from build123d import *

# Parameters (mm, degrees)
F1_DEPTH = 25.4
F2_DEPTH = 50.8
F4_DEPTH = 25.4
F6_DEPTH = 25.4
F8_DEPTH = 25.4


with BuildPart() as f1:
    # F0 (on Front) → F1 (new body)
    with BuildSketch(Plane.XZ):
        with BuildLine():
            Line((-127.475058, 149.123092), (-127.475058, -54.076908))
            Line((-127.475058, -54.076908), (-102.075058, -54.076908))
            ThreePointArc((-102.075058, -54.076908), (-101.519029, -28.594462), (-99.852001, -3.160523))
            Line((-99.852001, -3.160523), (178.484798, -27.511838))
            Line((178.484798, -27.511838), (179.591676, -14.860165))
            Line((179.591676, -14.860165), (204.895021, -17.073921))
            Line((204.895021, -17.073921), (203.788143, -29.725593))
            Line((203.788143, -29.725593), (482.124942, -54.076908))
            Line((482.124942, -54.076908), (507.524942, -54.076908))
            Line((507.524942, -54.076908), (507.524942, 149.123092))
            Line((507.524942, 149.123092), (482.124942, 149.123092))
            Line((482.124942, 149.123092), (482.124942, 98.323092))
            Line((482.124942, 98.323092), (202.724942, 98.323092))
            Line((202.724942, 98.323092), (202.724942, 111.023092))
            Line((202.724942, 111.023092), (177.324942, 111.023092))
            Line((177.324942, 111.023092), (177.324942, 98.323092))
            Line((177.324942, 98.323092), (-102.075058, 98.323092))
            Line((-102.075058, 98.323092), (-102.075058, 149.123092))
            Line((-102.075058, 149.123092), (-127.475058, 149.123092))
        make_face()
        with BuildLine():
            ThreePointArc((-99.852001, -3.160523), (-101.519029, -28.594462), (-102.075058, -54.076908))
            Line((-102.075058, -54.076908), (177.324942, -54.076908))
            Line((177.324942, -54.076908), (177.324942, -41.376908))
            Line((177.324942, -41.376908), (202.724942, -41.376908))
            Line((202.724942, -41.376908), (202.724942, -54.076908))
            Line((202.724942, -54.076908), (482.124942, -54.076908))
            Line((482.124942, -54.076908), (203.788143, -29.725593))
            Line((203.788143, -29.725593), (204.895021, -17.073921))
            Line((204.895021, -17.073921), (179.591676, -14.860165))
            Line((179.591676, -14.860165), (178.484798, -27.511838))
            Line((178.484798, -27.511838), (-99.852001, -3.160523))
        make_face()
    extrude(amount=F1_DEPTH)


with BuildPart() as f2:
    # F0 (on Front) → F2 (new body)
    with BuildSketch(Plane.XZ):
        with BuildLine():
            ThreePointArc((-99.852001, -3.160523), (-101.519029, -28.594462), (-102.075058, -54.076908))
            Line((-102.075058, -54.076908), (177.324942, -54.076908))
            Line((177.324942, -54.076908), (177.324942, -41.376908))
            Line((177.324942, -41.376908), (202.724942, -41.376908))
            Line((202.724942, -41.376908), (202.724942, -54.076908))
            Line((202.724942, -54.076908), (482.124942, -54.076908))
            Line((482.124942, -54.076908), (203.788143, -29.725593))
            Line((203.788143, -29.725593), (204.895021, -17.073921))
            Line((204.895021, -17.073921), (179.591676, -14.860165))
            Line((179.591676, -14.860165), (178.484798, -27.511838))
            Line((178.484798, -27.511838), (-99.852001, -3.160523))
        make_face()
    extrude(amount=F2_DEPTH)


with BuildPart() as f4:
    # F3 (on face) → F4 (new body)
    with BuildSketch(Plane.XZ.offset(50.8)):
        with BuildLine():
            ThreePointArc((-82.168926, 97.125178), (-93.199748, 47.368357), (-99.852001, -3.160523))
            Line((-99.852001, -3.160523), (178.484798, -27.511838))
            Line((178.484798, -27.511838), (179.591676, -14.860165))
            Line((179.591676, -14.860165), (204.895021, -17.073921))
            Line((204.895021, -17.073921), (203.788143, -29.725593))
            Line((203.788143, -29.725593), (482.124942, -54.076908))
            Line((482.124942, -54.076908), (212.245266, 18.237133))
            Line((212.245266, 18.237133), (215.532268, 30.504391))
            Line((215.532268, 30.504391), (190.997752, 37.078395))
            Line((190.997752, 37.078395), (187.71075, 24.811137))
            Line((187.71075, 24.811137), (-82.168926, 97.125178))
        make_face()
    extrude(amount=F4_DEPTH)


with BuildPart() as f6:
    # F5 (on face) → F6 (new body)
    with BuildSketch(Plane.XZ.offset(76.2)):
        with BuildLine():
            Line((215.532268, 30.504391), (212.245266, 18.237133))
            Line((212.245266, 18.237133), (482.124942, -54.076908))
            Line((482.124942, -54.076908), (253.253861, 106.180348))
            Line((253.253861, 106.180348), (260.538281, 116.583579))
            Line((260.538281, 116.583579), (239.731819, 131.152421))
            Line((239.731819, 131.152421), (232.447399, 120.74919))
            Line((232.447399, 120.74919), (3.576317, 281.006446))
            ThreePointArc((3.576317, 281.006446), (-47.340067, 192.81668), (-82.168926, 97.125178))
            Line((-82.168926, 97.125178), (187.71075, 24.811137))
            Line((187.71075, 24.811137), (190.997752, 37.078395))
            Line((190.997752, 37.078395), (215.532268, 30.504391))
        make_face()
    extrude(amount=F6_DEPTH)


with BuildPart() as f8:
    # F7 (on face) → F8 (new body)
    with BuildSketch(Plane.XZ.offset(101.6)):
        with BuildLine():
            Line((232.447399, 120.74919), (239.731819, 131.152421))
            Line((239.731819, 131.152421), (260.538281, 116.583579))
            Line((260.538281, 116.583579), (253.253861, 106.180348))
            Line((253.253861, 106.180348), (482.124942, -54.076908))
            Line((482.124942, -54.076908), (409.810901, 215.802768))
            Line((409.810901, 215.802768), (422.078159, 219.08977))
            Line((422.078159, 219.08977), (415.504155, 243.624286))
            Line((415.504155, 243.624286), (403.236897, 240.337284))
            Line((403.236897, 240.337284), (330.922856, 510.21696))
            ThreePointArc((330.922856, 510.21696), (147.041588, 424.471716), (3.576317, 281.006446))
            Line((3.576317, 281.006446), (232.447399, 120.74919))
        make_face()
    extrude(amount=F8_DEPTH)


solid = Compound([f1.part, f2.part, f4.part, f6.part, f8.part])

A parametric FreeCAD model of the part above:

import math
import FreeCAD as App
import Part
import Sketcher
from FreeCAD import Vector
Q = App.Units.Quantity

doc = App.newDocument("Part")
body = doc.addObject("PartDesign::Body", "Body")

# Sketch on XZ plane
sketch1 = doc.addObject("Sketcher::SketchObject", "Sketch")
body.addObject(sketch1)
sketch1.AttachmentSupport = (doc.XZ_Plane, [""])
sketch1.MapMode = "FlatFace"
sketch1.addGeometry([
    Part.LineSegment(Vector(-127, 149, 0), Vector(-127, -54, 0)),  # 0
    Part.LineSegment(Vector(-127, -54, 0), Vector(177, -54, 0)),  # 1
    Part.LineSegment(Vector(177, -54, 0), Vector(177, -41, 0)),  # 2
    Part.LineSegment(Vector(177, -41, 0), Vector(203, -41, 0)),  # 3
    Part.LineSegment(Vector(203, -41, 0), Vector(203, -54, 0)),  # 4
    Part.LineSegment(Vector(203, -54, 0), Vector(508, -54, 0)),  # 5
    Part.LineSegment(Vector(508, -54, 0), Vector(508, 149, 0)),  # 6
    Part.LineSegment(Vector(508, 149, 0), Vector(482, 149, 0)),  # 7
    Part.LineSegment(Vector(482, 149, 0), Vector(482, 98, 0)),  # 8
    Part.LineSegment(Vector(482, 98, 0), Vector(203, 98, 0)),  # 9
    Part.LineSegment(Vector(203, 98, 0), Vector(203, 111, 0)),  # 10
    Part.LineSegment(Vector(203, 111, 0), Vector(177, 111, 0)),  # 11
    Part.LineSegment(Vector(177, 111, 0), Vector(177, 98, 0)),  # 12
    Part.LineSegment(Vector(177, 98, 0), Vector(-102, 98, 0)),  # 13
    Part.LineSegment(Vector(-102, 98, 0), Vector(-102, 149, 0)),  # 14
    Part.LineSegment(Vector(-102, 149, 0), Vector(-127, 149, 0)),  # 15
], False)
sketch1.addConstraint([
    Sketcher.Constraint("Coincident", 0, 2, 1, 1),
    Sketcher.Constraint("Coincident", 1, 2, 2, 1),
    Sketcher.Constraint("Coincident", 2, 2, 3, 1),
    Sketcher.Constraint("Coincident", 3, 2, 4, 1),
    Sketcher.Constraint("Coincident", 4, 2, 5, 1),
    Sketcher.Constraint("Coincident", 5, 2, 6, 1),
    Sketcher.Constraint("Coincident", 6, 2, 7, 1),
    Sketcher.Constraint("Coincident", 7, 2, 8, 1),
    Sketcher.Constraint("Coincident", 8, 2, 9, 1),
    Sketcher.Constraint("Coincident", 9, 2, 10, 1),
    Sketcher.Constraint("Coincident", 10, 2, 11, 1),
    Sketcher.Constraint("Coincident", 11, 2, 12, 1),
    Sketcher.Constraint("Coincident", 12, 2, 13, 1),
    Sketcher.Constraint("Coincident", 13, 2, 14, 1),
    Sketcher.Constraint("Coincident", 14, 2, 15, 1),
    Sketcher.Constraint("Coincident", 15, 2, 0, 1),
    Sketcher.Constraint("Vertical", 0),
    Sketcher.Constraint("Horizontal", 1),
    Sketcher.Constraint("Vertical", 2),
    Sketcher.Constraint("Horizontal", 3),
    Sketcher.Constraint("Vertical", 4),
    Sketcher.Constraint("Horizontal", 5),
    Sketcher.Constraint("Vertical", 6),
    Sketcher.Constraint("Horizontal", 7),
    Sketcher.Constraint("Vertical", 8),
    Sketcher.Constraint("Horizontal", 9),
    Sketcher.Constraint("Vertical", 10),
    Sketcher.Constraint("Horizontal", 11),
    Sketcher.Constraint("Vertical", 12),
    Sketcher.Constraint("Horizontal", 13),
    Sketcher.Constraint("Vertical", 14),
    Sketcher.Constraint("Horizontal", 15),
    Sketcher.Constraint("Horizontal", 1, 2, 4, 2),
    Sketcher.Constraint("Horizontal", 9, 2, 12, 2),
    Sketcher.Constraint("Horizontal", 7, 2, 14, 2),
    Sketcher.Constraint("Vertical", 4, 2, 9, 2),
    Sketcher.Constraint("Vertical", 2, 2, 11, 2),
    Sketcher.Constraint("Equal", 1, 5),
    Sketcher.Constraint("Equal", 3, 7),
    Sketcher.Constraint("Equal", 9, 13),
    Sketcher.Constraint("Equal", 4, 10),
    Sketcher.Constraint("DistanceX", 1, 1, 1, 2, Q("12 in")),
    Sketcher.Constraint("DistanceX", 3, 1, 3, 2, Q("1 in")),
    Sketcher.Constraint("DistanceY", 0, 2, 0, 1, Q("8 in")),
    Sketcher.Constraint("DistanceY", 8, 2, 8, 1, Q("2 in")),
    Sketcher.Constraint("DistanceY", 2, 1, 2, 2, Q("0.5 in")),
    Sketcher.Constraint("DistanceX", 0, 2, -1, 1, Q("127.475058 mm")),
    Sketcher.Constraint("DistanceY", 0, 2, -1, 1, Q("54.076908 mm")),
])
pad1 = doc.addObject("PartDesign::Pad", "Pad")
body.addObject(pad1)
pad1.Profile = sketch1
pad1.Length = Q("1 in")
body2 = doc.addObject("PartDesign::Body", "Body001")

# Sketch on XZ plane
sketch2 = doc.addObject("Sketcher::SketchObject", "Sketch001")
body2.addObject(sketch2)
sketch2.AttachmentSupport = (doc.getObject("XZ_Plane001"), [""])
sketch2.MapMode = "FlatFace"
sketch2.addGeometry([
    Part.ArcOfCircle(Part.Circle(Vector(482, -54, 0), Vector(0, 0, 1), 584), math.radians(175), math.radians(180)),  # 0
    Part.LineSegment(Vector(-102, -54, 0), Vector(177, -54, 0)),  # 1
    Part.LineSegment(Vector(177, -54, 0), Vector(177, -41, 0)),  # 2
    Part.LineSegment(Vector(177, -41, 0), Vector(203, -41, 0)),  # 3
    Part.LineSegment(Vector(203, -41, 0), Vector(203, -54, 0)),  # 4
    Part.LineSegment(Vector(203, -54, 0), Vector(482, -54, 0)),  # 5
    Part.LineSegment(Vector(482, -54, 0), Vector(204, -30, 0)),  # 6
    Part.LineSegment(Vector(204, -30, 0), Vector(205, -17, 0)),  # 7
    Part.LineSegment(Vector(205, -17, 0), Vector(180, -15, 0)),  # 8
    Part.LineSegment(Vector(180, -15, 0), Vector(178, -28, 0)),  # 9
    Part.LineSegment(Vector(178, -28, 0), Vector(-100, -3, 0)),  # 10
], False)
sketch2.addConstraint([
    Sketcher.Constraint("Coincident", 0, 2, 1, 1),
    Sketcher.Constraint("Coincident", 1, 2, 2, 1),
    Sketcher.Constraint("Coincident", 2, 2, 3, 1),
    Sketcher.Constraint("Coincident", 3, 2, 4, 1),
    Sketcher.Constraint("Coincident", 4, 2, 5, 1),
    Sketcher.Constraint("Coincident", 5, 2, 6, 1),
    Sketcher.Constraint("Coincident", 6, 2, 7, 1),
    Sketcher.Constraint("Coincident", 7, 2, 8, 1),
    Sketcher.Constraint("Coincident", 8, 2, 9, 1),
    Sketcher.Constraint("Coincident", 9, 2, 10, 1),
    Sketcher.Constraint("Coincident", 10, 2, 0, 1),
    Sketcher.Constraint("Horizontal", 1),
    Sketcher.Constraint("Vertical", 2),
    Sketcher.Constraint("Horizontal", 3),
    Sketcher.Constraint("Vertical", 4),
    Sketcher.Constraint("Horizontal", 5),
    Sketcher.Constraint("Perpendicular", 6, 7),
    Sketcher.Constraint("Perpendicular", 7, 8),
    Sketcher.Constraint("Perpendicular", 8, 9),
    Sketcher.Constraint("Perpendicular", 9, 10),
    Sketcher.Constraint("Horizontal", 1, 2, 4, 2),
    Sketcher.Constraint("Equal", 1, 5),
    Sketcher.Constraint("Equal", 7, 9),
    Sketcher.Constraint("Equal", 6, 10),
    Sketcher.Constraint("DistanceX", 1, 1, 1, 2, Q("11 in")),
    Sketcher.Constraint("DistanceX", 3, 1, 3, 2, Q("1 in")),
    Sketcher.Constraint("Distance", 6, Q("11 in")),
    Sketcher.Constraint("Distance", 8, Q("1 in")),
    Sketcher.Constraint("DistanceY", 2, 1, 2, 2, Q("0.5 in")),
    Sketcher.Constraint("Angle", 6, Q("175 deg")),
    Sketcher.Constraint("Distance", 7, Q("0.5 in")),
    Sketcher.Constraint("Radius", 0, Q("584.200255 mm")),
    Sketcher.Constraint("DistanceX", -1, 1, 9, 2, Q("178.484798 mm")),
    Sketcher.Constraint("DistanceY", 1, 2, -1, 1, Q("54.076908 mm")),
])
pad2 = doc.addObject("PartDesign::Pad", "Pad001")
body2.addObject(pad2)
pad2.Profile = sketch2
pad2.Length = Q("2 in")
body3 = doc.addObject("PartDesign::Body", "Body002")

# Sketch on XZ plane
sketch3 = doc.addObject("Sketcher::SketchObject", "Sketch002")
body3.addObject(sketch3)
sketch3.AttachmentSupport = (doc.getObject("XZ_Plane002"), [""])
sketch3.MapMode = "FlatFace"
sketch3.AttachmentOffset = App.Placement(Vector(0, 0, 2 * 25.4), App.Rotation())
sketch3.addGeometry([
    Part.ArcOfCircle(Part.Circle(Vector(482, -54, 0), Vector(0, 0, 1), 584), math.radians(165), math.radians(175)),  # 0
    Part.LineSegment(Vector(-100, -3, 0), Vector(178, -28, 0)),  # 1
    Part.LineSegment(Vector(178, -28, 0), Vector(180, -15, 0)),  # 2
    Part.LineSegment(Vector(180, -15, 0), Vector(205, -17, 0)),  # 3
    Part.LineSegment(Vector(205, -17, 0), Vector(204, -30, 0)),  # 4
    Part.LineSegment(Vector(204, -30, 0), Vector(482, -54, 0)),  # 5
    Part.LineSegment(Vector(482, -54, 0), Vector(212, 18, 0)),  # 6
    Part.LineSegment(Vector(212, 18, 0), Vector(216, 31, 0)),  # 7
    Part.LineSegment(Vector(216, 31, 0), Vector(191, 37, 0)),  # 8
    Part.LineSegment(Vector(191, 37, 0), Vector(188, 25, 0)),  # 9
    Part.LineSegment(Vector(188, 25, 0), Vector(-82, 97, 0)),  # 10
], False)
sketch3.addConstraint([
    Sketcher.Constraint("Coincident", 0, 2, 1, 1),
    Sketcher.Constraint("Coincident", 1, 2, 2, 1),
    Sketcher.Constraint("Coincident", 2, 2, 3, 1),
    Sketcher.Constraint("Coincident", 3, 2, 4, 1),
    Sketcher.Constraint("Coincident", 4, 2, 5, 1),
    Sketcher.Constraint("Coincident", 5, 2, 6, 1),
    Sketcher.Constraint("Coincident", 6, 2, 7, 1),
    Sketcher.Constraint("Coincident", 7, 2, 8, 1),
    Sketcher.Constraint("Coincident", 8, 2, 9, 1),
    Sketcher.Constraint("Coincident", 9, 2, 10, 1),
    Sketcher.Constraint("Coincident", 10, 2, 0, 1),
    Sketcher.Constraint("Perpendicular", 1, 2),
    Sketcher.Constraint("Perpendicular", 2, 3),
    Sketcher.Constraint("Perpendicular", 3, 4),
    Sketcher.Constraint("Perpendicular", 4, 5),
    Sketcher.Constraint("Perpendicular", 6, 7),
    Sketcher.Constraint("Perpendicular", 7, 8),
    Sketcher.Constraint("Perpendicular", 8, 9),
    Sketcher.Constraint("Perpendicular", 9, 10),
    Sketcher.Constraint("Equal", 2, 4),
    Sketcher.Constraint("Equal", 1, 5),
    Sketcher.Constraint("Equal", 5, 6),
    Sketcher.Constraint("Equal", 4, 7),
    Sketcher.Constraint("Equal", 3, 8),
    Sketcher.Constraint("Equal", 7, 9),
    Sketcher.Constraint("Equal", 6, 10),
    Sketcher.Constraint("Distance", 1, Q("11 in")),
    Sketcher.Constraint("Distance", 3, Q("1 in")),
    Sketcher.Constraint("Angle", 1, Q("-5 deg")),
    Sketcher.Constraint("Angle", 6, Q("165 deg")),
    Sketcher.Constraint("Distance", 2, Q("0.5 in")),
    Sketcher.Constraint("Radius", 0, Q("584.199921 mm")),
    Sketcher.Constraint("DistanceX", 0, 2, -1, 1, Q("99.852001 mm")),
    Sketcher.Constraint("DistanceY", 1, 2, -1, 1, Q("27.511838 mm")),
])
pad3 = doc.addObject("PartDesign::Pad", "Pad002")
body3.addObject(pad3)
pad3.Profile = sketch3
pad3.Length = Q("1 in")
body4 = doc.addObject("PartDesign::Body", "Body003")

# Sketch on XZ plane
sketch4 = doc.addObject("Sketcher::SketchObject", "Sketch003")
body4.addObject(sketch4)
sketch4.AttachmentSupport = (doc.getObject("XZ_Plane003"), [""])
sketch4.MapMode = "FlatFace"
sketch4.AttachmentOffset = App.Placement(Vector(0, 0, 3 * 25.4), App.Rotation())
sketch4.addGeometry([
    Part.LineSegment(Vector(216, 31, 0), Vector(212, 18, 0)),  # 0
    Part.LineSegment(Vector(212, 18, 0), Vector(482, -54, 0)),  # 1
    Part.LineSegment(Vector(482, -54, 0), Vector(253, 106, 0)),  # 2
    Part.LineSegment(Vector(253, 106, 0), Vector(261, 117, 0)),  # 3
    Part.LineSegment(Vector(261, 117, 0), Vector(240, 131, 0)),  # 4
    Part.LineSegment(Vector(240, 131, 0), Vector(232, 121, 0)),  # 5
    Part.LineSegment(Vector(232, 121, 0), Vector(4, 281, 0)),  # 6
    Part.ArcOfCircle(Part.Circle(Vector(482, -54, 0), Vector(0, 0, 1), 584), math.radians(145), math.radians(165)),  # 7
    Part.LineSegment(Vector(-82, 97, 0), Vector(188, 25, 0)),  # 8
    Part.LineSegment(Vector(188, 25, 0), Vector(191, 37, 0)),  # 9
    Part.LineSegment(Vector(191, 37, 0), Vector(216, 31, 0)),  # 10
], False)
sketch4.addConstraint([
    Sketcher.Constraint("Coincident", 0, 2, 1, 1),
    Sketcher.Constraint("Coincident", 1, 2, 2, 1),
    Sketcher.Constraint("Coincident", 2, 2, 3, 1),
    Sketcher.Constraint("Coincident", 3, 2, 4, 1),
    Sketcher.Constraint("Coincident", 4, 2, 5, 1),
    Sketcher.Constraint("Coincident", 5, 2, 6, 1),
    Sketcher.Constraint("Coincident", 6, 2, 7, 1),
    Sketcher.Constraint("Coincident", 7, 2, 8, 1),
    Sketcher.Constraint("Coincident", 8, 2, 9, 1),
    Sketcher.Constraint("Coincident", 9, 2, 10, 1),
    Sketcher.Constraint("Coincident", 10, 2, 0, 1),
    Sketcher.Constraint("Perpendicular", 0, 1),
    Sketcher.Constraint("Perpendicular", 2, 3),
    Sketcher.Constraint("Perpendicular", 3, 4),
    Sketcher.Constraint("Perpendicular", 4, 5),
    Sketcher.Constraint("Perpendicular", 5, 6),
    Sketcher.Constraint("Parallel", 1, 8),
    Sketcher.Constraint("Perpendicular", 8, 9),
    Sketcher.Constraint("Perpendicular", 9, 10),
    Sketcher.Constraint("Equal", 1, 2),
    Sketcher.Constraint("Equal", 0, 3),
    Sketcher.Constraint("Equal", 3, 5),
    Sketcher.Constraint("Equal", 2, 6),
    Sketcher.Constraint("Equal", 6, 8),
    Sketcher.Constraint("Equal", 5, 9),
    Sketcher.Constraint("Equal", 4, 10),
    Sketcher.Constraint("Distance", 1, Q("11 in")),
    Sketcher.Constraint("Distance", 4, Q("1 in")),
    Sketcher.Constraint("Angle", 0, Q("-105.000001 deg")),
    Sketcher.Constraint("Angle", 2, Q("145 deg")),
    Sketcher.Constraint("Distance", 0, Q("0.5 in")),
    Sketcher.Constraint("Radius", 7, Q("584.20005 mm")),
    Sketcher.Constraint("DistanceX", -1, 1, 6, 2, Q("0.1407999 in")),
    Sketcher.Constraint("DistanceY", 7, 3, -1, 1, Q("54.076929 mm")),
])
pad4 = doc.addObject("PartDesign::Pad", "Pad003")
body4.addObject(pad4)
pad4.Profile = sketch4
pad4.Length = Q("1 in")
body5 = doc.addObject("PartDesign::Body", "Body004")

# Sketch on XZ plane
sketch5 = doc.addObject("Sketcher::SketchObject", "Sketch004")
body5.addObject(sketch5)
sketch5.AttachmentSupport = (doc.getObject("XZ_Plane004"), [""])
sketch5.MapMode = "FlatFace"
sketch5.AttachmentOffset = App.Placement(Vector(0, 0, 4 * 25.4), App.Rotation())
sketch5.addGeometry([
    Part.LineSegment(Vector(232.447399, 120.74919, 0), Vector(239.731819, 131.152421, 0)),  # 0
    Part.LineSegment(Vector(239.731819, 131.152421, 0), Vector(260.538281, 116.583579, 0)),  # 1
    Part.LineSegment(Vector(260.538281, 116.583579, 0), Vector(253.253861, 106.180348, 0)),  # 2
    Part.LineSegment(Vector(253.253861, 106.180348, 0), Vector(482.124942, -54.076908, 0)),  # 3
    Part.LineSegment(Vector(482.124942, -54.076908, 0), Vector(409.810901, 215.802768, 0)),  # 4
    Part.LineSegment(Vector(409.810901, 215.802768, 0), Vector(422.078159, 219.08977, 0)),  # 5
    Part.LineSegment(Vector(422.078159, 219.08977, 0), Vector(415.504155, 243.624286, 0)),  # 6
    Part.LineSegment(Vector(415.504155, 243.624286, 0), Vector(403.236897, 240.337284, 0)),  # 7
    Part.LineSegment(Vector(403.236897, 240.337284, 0), Vector(330.922856, 510.21696, 0)),  # 8
    Part.ArcOfCircle(Part.Circle(Vector(482.124948, -54.076917, 0), Vector(0, 0, 1), 584.200011), math.radians(105), math.radians(145)),  # 9
    Part.LineSegment(Vector(3.576317, 281.006446, 0), Vector(232.447399, 120.74919, 0)),  # 10
], False)
sketch5.addConstraint([
    Sketcher.Constraint("Coincident", 0, 2, 1, 1),
    Sketcher.Constraint("Coincident", 1, 2, 2, 1),
    Sketcher.Constraint("Coincident", 2, 2, 3, 1),
    Sketcher.Constraint("Coincident", 3, 2, 4, 1),
    Sketcher.Constraint("Coincident", 4, 2, 5, 1),
    Sketcher.Constraint("Coincident", 5, 2, 6, 1),
    Sketcher.Constraint("Coincident", 6, 2, 7, 1),
    Sketcher.Constraint("Coincident", 7, 2, 8, 1),
    Sketcher.Constraint("Coincident", 8, 2, 9, 1),
    Sketcher.Constraint("Coincident", 9, 2, 10, 1),
    Sketcher.Constraint("Coincident", 10, 2, 0, 1),
    Sketcher.Constraint("Distance", 1, Q("1 in")),
    Sketcher.Constraint("Distance", 3, Q("11 in")),
    Sketcher.Constraint("Distance", 4, Q("11 in")),
    Sketcher.Constraint("Distance", 6, Q("1 in")),
    Sketcher.Constraint("Distance", 8, Q("11 in")),
    Sketcher.Constraint("Distance", 10, Q("11 in")),
    Sketcher.Constraint("Distance", 0, Q("0.5 in")),
    Sketcher.Constraint("Distance", 2, Q("0.5 in")),
    Sketcher.Constraint("Distance", 5, Q("0.5 in")),
    Sketcher.Constraint("Distance", 7, Q("0.5 in")),
    Sketcher.Constraint("Radius", 9, Q("584.200011 mm")),
    Sketcher.Constraint("DistanceX", -1, 1, 9, 2, Q("0.1407999 in")),
    Sketcher.Constraint("DistanceX", -1, 1, 4, 2, Q("409.810901 mm")),
    Sketcher.Constraint("DistanceX", -1, 1, 10, 2, Q("232.447399 mm")),
    Sketcher.Constraint("DistanceX", 2, 2, 5, 2, Q("168.824298 mm")),
    Sketcher.Constraint("DistanceX", 8, 2, 6, 2, Q("84.581299 mm")),
    Sketcher.Constraint("DistanceX", 10, 2, 7, 2, Q("170.789498 mm")),
    Sketcher.Constraint("DistanceX", -1, 1, 9, 3, Q("482.124948 mm")),
    Sketcher.Constraint("DistanceX", -1, 1, 0, 2, Q("239.731819 mm")),
    Sketcher.Constraint("DistanceY", -1, 1, 0, 2, Q("131.152421 mm")),
    Sketcher.Constraint("DistanceX", -1, 1, 1, 2, Q("260.538281 mm")),
    Sketcher.Constraint("DistanceX", -1, 1, 2, 2, Q("253.253861 mm")),
    Sketcher.Constraint("DistanceX", -1, 1, 3, 2, Q("482.124942 mm")),
])
pad5 = doc.addObject("PartDesign::Pad", "Pad004")
body5.addObject(pad5)
pad5.Profile = sketch5
pad5.Length = Q("1 in")

doc.recompute()
